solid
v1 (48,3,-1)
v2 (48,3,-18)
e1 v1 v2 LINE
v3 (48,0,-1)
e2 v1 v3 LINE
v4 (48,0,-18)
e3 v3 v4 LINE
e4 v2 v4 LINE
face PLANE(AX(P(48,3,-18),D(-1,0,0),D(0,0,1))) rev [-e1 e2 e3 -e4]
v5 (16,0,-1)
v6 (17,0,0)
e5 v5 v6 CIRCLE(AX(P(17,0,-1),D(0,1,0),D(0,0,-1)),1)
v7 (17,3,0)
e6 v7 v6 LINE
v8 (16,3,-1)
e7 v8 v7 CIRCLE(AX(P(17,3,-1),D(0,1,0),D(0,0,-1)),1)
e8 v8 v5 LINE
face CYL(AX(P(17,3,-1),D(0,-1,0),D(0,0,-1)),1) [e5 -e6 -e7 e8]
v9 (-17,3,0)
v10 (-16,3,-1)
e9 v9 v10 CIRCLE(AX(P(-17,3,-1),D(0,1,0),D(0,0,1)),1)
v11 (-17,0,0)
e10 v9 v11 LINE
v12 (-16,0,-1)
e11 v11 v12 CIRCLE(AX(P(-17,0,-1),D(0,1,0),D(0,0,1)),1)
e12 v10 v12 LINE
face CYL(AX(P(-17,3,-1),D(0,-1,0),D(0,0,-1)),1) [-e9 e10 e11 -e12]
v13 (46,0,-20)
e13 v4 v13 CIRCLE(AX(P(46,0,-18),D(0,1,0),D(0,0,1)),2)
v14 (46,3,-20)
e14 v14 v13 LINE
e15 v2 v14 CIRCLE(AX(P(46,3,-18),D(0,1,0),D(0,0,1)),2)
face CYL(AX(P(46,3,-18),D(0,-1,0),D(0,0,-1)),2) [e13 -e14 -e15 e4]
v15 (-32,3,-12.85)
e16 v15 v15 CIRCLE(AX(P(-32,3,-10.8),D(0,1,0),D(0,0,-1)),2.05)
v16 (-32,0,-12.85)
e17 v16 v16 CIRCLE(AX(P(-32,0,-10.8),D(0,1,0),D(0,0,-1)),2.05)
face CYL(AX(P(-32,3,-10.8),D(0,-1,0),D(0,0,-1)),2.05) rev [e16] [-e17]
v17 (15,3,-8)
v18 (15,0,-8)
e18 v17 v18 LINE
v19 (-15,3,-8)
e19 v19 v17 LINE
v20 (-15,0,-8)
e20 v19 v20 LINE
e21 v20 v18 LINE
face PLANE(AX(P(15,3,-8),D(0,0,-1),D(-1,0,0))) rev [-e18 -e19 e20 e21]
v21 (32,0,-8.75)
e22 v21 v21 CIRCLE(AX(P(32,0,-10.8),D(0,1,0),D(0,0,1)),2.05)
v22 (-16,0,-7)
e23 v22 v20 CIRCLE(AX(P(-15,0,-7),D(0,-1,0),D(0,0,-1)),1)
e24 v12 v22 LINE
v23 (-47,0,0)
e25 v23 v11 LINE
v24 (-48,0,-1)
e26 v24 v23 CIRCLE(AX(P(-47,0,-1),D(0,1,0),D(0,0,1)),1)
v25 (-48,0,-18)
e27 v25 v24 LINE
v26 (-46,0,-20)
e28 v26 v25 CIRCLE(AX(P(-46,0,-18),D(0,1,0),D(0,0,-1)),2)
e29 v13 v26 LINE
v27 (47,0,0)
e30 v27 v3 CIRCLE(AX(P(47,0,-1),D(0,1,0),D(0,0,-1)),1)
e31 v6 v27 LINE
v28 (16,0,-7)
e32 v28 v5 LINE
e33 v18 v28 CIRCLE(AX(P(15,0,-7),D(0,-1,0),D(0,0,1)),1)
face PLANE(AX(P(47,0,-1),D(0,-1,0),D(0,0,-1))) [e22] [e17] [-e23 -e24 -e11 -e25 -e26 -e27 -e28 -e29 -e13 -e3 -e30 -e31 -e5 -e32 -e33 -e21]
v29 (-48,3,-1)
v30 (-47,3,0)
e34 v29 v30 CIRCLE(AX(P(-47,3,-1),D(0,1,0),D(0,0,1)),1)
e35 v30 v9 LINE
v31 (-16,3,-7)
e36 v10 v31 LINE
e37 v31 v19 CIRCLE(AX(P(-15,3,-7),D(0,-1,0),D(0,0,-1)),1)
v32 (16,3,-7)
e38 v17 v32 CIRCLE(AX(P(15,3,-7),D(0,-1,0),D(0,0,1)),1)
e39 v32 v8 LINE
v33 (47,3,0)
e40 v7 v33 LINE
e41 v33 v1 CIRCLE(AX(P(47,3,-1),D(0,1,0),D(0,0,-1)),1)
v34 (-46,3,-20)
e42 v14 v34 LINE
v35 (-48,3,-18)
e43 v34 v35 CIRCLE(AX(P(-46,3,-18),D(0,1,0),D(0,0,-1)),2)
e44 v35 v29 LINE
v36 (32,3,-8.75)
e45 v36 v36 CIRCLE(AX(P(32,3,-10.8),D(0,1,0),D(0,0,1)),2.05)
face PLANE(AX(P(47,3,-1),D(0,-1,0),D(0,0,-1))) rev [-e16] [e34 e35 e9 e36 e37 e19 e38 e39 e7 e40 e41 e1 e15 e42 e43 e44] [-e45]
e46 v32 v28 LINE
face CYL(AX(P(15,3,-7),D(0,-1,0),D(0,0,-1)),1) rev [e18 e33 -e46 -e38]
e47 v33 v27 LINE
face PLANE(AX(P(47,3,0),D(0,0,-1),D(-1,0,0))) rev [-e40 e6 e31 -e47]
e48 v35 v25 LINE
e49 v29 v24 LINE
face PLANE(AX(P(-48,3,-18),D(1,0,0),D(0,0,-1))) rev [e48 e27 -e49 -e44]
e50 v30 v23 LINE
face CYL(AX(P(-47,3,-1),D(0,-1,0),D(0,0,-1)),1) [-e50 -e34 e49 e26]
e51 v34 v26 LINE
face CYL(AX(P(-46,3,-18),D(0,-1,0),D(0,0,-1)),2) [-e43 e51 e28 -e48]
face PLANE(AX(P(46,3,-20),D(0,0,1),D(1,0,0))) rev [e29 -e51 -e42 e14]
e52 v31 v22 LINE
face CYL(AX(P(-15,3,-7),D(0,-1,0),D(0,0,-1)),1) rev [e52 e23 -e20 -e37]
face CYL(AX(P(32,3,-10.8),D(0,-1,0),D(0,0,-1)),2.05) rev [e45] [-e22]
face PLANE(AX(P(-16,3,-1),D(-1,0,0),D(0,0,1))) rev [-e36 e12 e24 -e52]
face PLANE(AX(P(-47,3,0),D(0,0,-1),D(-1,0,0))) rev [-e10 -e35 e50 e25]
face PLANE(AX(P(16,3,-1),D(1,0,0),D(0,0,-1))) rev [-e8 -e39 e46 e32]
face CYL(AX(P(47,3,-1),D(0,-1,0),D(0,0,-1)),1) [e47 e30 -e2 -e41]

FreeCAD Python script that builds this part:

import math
import FreeCAD as App
import Part
import Sketcher
from FreeCAD import Vector
Q = App.Units.Quantity

doc = App.newDocument("Part")
body = doc.addObject("PartDesign::Body", "Body")

sketch1 = doc.addObject("Sketcher::SketchObject", "Sketch")
body.addObject(sketch1)
sketch1.AttachmentSupport = (doc.XZ_Plane, [""])
sketch1.MapMode = "FlatFace"
sketch1.addGeometry([
    Part.LineSegment(Vector(46, -20, 0), Vector(-46, -20, 0)),
    Part.ArcOfCircle(Part.Circle(Vector(-46, -18, 0), Vector(0, 0, 1), 2), math.radians(-180), math.radians(-90)),
    Part.LineSegment(Vector(-48, -18, 0), Vector(-48, -1, 0)),
    Part.ArcOfCircle(Part.Circle(Vector(-47, -1, 0), Vector(0, 0, 1), 1), math.radians(90), math.radians(180)),
    Part.LineSegment(Vector(-47, 0, 0), Vector(-17, 0, 0)),
    Part.ArcOfCircle(Part.Circle(Vector(-17, -1, 0), Vector(0, 0, 1), 1), math.radians(0), math.radians(90)),
    Part.LineSegment(Vector(-16, -1, 0), Vector(-16, -7, 0)),
    Part.ArcOfCircle(Part.Circle(Vector(-15, -7, 0), Vector(0, 0, 1), 1), math.radians(-180), math.radians(-90)),
    Part.LineSegment(Vector(-15, -8, 0), Vector(15, -8, 0)),
    Part.ArcOfCircle(Part.Circle(Vector(15, -7, 0), Vector(0, 0, 1), 1), math.radians(-90), math.radians(0)),
    Part.LineSegment(Vector(16, -7, 0), Vector(16, -1, 0)),
    Part.ArcOfCircle(Part.Circle(Vector(17, -1, 0), Vector(0, 0, 1), 1), math.radians(90), math.radians(180)),
    Part.LineSegment(Vector(17, 0, 0), Vector(47, 0, 0)),
    Part.ArcOfCircle(Part.Circle(Vector(47, -1, 0), Vector(0, 0, 1), 1), math.radians(0), math.radians(90)),
    Part.LineSegment(Vector(48, -1, 0), Vector(48, -18, 0)),
    Part.ArcOfCircle(Part.Circle(Vector(46, -18, 0), Vector(0, 0, 1), 2), math.radians(-90), math.radians(0)),
    Part.Circle(Vector(-32, -10.8, 0), Vector(0, 0, 1), 2.05),
    Part.Circle(Vector(32, -10.8, 0), Vector(0, 0, 1), 2.05),
], False)
sketch1.addConstraint([
    Sketcher.Constraint("Tangent", 0, 2, 1, 2),
    Sketcher.Constraint("Tangent", 1, 1, 2, 1),
    Sketcher.Constraint("Tangent", 2, 2, 3, 2),
    Sketcher.Constraint("Tangent", 3, 1, 4, 1),
    Sketcher.Constraint("Tangent", 4, 2, 5, 2),
    Sketcher.Constraint("Tangent", 5, 1, 6, 1),
    Sketcher.Constraint("Tangent", 6, 2, 7, 1),
    Sketcher.Constraint("Tangent", 7, 2, 8, 1),
    Sketcher.Constraint("Tangent", 8, 2, 9, 1),
    Sketcher.Constraint("Tangent", 9, 2, 10, 1),
    Sketcher.Constraint("Tangent", 10, 2, 11, 2),
    Sketcher.Constraint("Tangent", 11, 1, 12, 1),
    Sketcher.Constraint("Tangent", 12, 2, 13, 2),
    Sketcher.Constraint("Tangent", 13, 1, 14, 1),
    Sketcher.Constraint("Tangent", 14, 2, 15, 2),
    Sketcher.Constraint("Tangent", 15, 1, 0, 1),
    Sketcher.Constraint("Horizontal", 0),
    Sketcher.Constraint("Vertical", 2),
    Sketcher.Constraint("Horizontal", 4),
    Sketcher.Constraint("Vertical", 6),
    Sketcher.Constraint("Horizontal", 8),
    Sketcher.Constraint("Vertical", 10),
    Sketcher.Constraint("Horizontal", 12),
    Sketcher.Constraint("Vertical", 14),
    Sketcher.Constraint("Equal", 3, 5),
    Sketcher.Constraint("Equal", 5, 7),
    Sketcher.Constraint("Equal", 7, 9),
    Sketcher.Constraint("Equal", 9, 11),
    Sketcher.Constraint("Equal", 11, 13),
    Sketcher.Constraint("Equal", 1, 15),
    Sketcher.Constraint("Equal", 16, 17),
    Sketcher.Constraint("Symmetric", 4, 2, 11, 1, -1, 1),
    Sketcher.Constraint("Symmetric", 3, 3, 13, 3, -2),
    Sketcher.Constraint("Symmetric", 16, 3, 17, 3, -2),
    Sketcher.Constraint("Equal", 4, 8),
    Sketcher.Constraint("Radius", 1, Q("2 mm")),
    Sketcher.Constraint("Radius", 3, Q("1 mm")),
    Sketcher.Constraint("Diameter", 16, Q("4.1 mm")),
    Sketcher.Constraint("DistanceX", 0, 2, 0, 1, Q("92 mm")),
    Sketcher.Constraint("DistanceY", 2, 1, 2, 2, Q("17 mm")),
    Sketcher.Constraint("DistanceY", 6, 2, 6, 1, Q("6 mm")),
    Sketcher.Constraint("DistanceX", 16, 3, -1, 1, Q("32 mm")),
    Sketcher.Constraint("DistanceY", 16, 3, -1, 1, Q("10.8 mm")),
])
pad1 = doc.addObject("PartDesign::Pad", "Pad")
body.addObject(pad1)
pad1.Profile = sketch1
pad1.Length = 3
pad1.Reversed = True

doc.recompute()
